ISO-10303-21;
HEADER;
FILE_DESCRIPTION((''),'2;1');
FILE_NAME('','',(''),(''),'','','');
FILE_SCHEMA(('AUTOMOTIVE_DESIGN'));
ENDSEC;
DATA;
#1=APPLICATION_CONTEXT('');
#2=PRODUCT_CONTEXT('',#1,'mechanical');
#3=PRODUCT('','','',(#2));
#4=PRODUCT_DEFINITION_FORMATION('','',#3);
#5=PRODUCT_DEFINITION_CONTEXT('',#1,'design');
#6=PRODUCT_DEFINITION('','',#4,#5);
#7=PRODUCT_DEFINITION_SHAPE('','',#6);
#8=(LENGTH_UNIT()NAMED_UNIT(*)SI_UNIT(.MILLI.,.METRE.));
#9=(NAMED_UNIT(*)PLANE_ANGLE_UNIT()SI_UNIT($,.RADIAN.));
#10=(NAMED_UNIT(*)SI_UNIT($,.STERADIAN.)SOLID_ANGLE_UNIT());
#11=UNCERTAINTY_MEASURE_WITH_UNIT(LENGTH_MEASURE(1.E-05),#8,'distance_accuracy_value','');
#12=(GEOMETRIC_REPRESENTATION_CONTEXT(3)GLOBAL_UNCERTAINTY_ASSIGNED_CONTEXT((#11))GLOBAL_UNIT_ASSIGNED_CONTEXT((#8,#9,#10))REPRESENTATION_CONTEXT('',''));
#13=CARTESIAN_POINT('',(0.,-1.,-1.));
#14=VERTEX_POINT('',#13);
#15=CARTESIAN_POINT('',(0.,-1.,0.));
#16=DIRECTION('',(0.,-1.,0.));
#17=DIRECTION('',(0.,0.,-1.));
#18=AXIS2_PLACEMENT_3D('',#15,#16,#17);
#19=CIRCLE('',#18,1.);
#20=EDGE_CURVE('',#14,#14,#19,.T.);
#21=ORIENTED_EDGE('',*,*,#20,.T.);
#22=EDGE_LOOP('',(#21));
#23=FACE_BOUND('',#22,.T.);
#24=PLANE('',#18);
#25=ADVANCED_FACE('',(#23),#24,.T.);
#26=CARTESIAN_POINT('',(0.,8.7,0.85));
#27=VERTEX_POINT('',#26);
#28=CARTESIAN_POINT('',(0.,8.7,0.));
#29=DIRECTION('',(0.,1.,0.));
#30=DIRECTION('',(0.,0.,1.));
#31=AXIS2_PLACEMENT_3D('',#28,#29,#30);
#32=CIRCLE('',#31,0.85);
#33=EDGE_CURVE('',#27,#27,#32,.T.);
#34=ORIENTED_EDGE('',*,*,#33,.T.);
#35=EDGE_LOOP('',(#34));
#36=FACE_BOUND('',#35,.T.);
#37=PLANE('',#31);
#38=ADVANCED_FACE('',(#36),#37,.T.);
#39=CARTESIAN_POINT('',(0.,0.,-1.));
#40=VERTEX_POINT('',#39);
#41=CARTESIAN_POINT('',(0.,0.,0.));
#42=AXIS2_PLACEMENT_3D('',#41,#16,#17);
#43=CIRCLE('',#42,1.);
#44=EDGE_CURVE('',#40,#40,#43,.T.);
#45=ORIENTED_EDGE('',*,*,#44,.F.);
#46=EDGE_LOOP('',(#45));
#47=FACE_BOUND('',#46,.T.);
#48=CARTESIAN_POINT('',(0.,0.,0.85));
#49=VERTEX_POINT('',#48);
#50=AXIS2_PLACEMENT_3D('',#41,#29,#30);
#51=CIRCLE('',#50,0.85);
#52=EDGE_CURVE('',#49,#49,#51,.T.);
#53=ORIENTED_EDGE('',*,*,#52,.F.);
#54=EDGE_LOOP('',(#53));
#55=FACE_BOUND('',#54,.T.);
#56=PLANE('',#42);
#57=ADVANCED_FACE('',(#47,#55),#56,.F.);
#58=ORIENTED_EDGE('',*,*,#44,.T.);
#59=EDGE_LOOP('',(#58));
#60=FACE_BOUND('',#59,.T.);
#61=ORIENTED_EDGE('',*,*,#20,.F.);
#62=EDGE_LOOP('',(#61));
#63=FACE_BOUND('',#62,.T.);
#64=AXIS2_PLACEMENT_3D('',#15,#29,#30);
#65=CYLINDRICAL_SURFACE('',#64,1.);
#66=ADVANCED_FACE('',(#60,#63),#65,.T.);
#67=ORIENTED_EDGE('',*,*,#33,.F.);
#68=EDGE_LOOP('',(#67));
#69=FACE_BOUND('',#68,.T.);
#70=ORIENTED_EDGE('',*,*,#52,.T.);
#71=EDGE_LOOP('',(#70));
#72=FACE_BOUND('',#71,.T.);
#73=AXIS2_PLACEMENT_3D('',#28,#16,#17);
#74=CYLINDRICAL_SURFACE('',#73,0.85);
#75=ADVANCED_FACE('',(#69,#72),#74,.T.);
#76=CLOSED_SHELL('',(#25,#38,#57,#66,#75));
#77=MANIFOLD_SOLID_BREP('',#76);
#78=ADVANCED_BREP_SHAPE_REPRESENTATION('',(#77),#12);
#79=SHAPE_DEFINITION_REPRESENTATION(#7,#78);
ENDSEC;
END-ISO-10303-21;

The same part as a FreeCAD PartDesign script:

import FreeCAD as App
import Part
import Sketcher

doc = App.newDocument("Part")
body = doc.addObject("PartDesign::Body", "Body")

# Sketch on XZ plane
sketch1 = doc.addObject("Sketcher::SketchObject", "Sketch")
body.addObject(sketch1)
sketch1.AttachmentSupport = (doc.XZ_Plane, [""])
sketch1.MapMode = "FlatFace"
sketch1.addGeometry(Part.Circle(App.Vector(0, 0, 0), App.Vector(0, 0, 1), 0.8), False)
sketch1.addConstraint(Sketcher.Constraint("Coincident", 0, 3, -1, 1))
sketch1.addConstraint(Sketcher.Constraint("Diameter", 0, 1.7))
pad1 = doc.addObject("PartDesign::Pad", "Pad")
body.addObject(pad1)
pad1.Profile = sketch1
pad1.Length = 8.7
pad1.Reversed = True

# Sketch on XZ plane
sketch2 = doc.addObject("Sketcher::SketchObject", "Sketch001")
body.addObject(sketch2)
sketch2.AttachmentSupport = (doc.XZ_Plane, [""])
sketch2.MapMode = "FlatFace"
sketch2.addGeometry(Part.Circle(App.Vector(0, 0, 0), App.Vector(0, 0, 1), 1), False)
sketch2.addConstraint(Sketcher.Constraint("Coincident", 0, 3, -1, 1))
sketch2.addConstraint(Sketcher.Constraint("Diameter", 0, 2.0))
pad2 = doc.addObject("PartDesign::Pad", "Pad001")
body.addObject(pad2)
pad2.Profile = sketch2
pad2.Length = 1

doc.recompute()
